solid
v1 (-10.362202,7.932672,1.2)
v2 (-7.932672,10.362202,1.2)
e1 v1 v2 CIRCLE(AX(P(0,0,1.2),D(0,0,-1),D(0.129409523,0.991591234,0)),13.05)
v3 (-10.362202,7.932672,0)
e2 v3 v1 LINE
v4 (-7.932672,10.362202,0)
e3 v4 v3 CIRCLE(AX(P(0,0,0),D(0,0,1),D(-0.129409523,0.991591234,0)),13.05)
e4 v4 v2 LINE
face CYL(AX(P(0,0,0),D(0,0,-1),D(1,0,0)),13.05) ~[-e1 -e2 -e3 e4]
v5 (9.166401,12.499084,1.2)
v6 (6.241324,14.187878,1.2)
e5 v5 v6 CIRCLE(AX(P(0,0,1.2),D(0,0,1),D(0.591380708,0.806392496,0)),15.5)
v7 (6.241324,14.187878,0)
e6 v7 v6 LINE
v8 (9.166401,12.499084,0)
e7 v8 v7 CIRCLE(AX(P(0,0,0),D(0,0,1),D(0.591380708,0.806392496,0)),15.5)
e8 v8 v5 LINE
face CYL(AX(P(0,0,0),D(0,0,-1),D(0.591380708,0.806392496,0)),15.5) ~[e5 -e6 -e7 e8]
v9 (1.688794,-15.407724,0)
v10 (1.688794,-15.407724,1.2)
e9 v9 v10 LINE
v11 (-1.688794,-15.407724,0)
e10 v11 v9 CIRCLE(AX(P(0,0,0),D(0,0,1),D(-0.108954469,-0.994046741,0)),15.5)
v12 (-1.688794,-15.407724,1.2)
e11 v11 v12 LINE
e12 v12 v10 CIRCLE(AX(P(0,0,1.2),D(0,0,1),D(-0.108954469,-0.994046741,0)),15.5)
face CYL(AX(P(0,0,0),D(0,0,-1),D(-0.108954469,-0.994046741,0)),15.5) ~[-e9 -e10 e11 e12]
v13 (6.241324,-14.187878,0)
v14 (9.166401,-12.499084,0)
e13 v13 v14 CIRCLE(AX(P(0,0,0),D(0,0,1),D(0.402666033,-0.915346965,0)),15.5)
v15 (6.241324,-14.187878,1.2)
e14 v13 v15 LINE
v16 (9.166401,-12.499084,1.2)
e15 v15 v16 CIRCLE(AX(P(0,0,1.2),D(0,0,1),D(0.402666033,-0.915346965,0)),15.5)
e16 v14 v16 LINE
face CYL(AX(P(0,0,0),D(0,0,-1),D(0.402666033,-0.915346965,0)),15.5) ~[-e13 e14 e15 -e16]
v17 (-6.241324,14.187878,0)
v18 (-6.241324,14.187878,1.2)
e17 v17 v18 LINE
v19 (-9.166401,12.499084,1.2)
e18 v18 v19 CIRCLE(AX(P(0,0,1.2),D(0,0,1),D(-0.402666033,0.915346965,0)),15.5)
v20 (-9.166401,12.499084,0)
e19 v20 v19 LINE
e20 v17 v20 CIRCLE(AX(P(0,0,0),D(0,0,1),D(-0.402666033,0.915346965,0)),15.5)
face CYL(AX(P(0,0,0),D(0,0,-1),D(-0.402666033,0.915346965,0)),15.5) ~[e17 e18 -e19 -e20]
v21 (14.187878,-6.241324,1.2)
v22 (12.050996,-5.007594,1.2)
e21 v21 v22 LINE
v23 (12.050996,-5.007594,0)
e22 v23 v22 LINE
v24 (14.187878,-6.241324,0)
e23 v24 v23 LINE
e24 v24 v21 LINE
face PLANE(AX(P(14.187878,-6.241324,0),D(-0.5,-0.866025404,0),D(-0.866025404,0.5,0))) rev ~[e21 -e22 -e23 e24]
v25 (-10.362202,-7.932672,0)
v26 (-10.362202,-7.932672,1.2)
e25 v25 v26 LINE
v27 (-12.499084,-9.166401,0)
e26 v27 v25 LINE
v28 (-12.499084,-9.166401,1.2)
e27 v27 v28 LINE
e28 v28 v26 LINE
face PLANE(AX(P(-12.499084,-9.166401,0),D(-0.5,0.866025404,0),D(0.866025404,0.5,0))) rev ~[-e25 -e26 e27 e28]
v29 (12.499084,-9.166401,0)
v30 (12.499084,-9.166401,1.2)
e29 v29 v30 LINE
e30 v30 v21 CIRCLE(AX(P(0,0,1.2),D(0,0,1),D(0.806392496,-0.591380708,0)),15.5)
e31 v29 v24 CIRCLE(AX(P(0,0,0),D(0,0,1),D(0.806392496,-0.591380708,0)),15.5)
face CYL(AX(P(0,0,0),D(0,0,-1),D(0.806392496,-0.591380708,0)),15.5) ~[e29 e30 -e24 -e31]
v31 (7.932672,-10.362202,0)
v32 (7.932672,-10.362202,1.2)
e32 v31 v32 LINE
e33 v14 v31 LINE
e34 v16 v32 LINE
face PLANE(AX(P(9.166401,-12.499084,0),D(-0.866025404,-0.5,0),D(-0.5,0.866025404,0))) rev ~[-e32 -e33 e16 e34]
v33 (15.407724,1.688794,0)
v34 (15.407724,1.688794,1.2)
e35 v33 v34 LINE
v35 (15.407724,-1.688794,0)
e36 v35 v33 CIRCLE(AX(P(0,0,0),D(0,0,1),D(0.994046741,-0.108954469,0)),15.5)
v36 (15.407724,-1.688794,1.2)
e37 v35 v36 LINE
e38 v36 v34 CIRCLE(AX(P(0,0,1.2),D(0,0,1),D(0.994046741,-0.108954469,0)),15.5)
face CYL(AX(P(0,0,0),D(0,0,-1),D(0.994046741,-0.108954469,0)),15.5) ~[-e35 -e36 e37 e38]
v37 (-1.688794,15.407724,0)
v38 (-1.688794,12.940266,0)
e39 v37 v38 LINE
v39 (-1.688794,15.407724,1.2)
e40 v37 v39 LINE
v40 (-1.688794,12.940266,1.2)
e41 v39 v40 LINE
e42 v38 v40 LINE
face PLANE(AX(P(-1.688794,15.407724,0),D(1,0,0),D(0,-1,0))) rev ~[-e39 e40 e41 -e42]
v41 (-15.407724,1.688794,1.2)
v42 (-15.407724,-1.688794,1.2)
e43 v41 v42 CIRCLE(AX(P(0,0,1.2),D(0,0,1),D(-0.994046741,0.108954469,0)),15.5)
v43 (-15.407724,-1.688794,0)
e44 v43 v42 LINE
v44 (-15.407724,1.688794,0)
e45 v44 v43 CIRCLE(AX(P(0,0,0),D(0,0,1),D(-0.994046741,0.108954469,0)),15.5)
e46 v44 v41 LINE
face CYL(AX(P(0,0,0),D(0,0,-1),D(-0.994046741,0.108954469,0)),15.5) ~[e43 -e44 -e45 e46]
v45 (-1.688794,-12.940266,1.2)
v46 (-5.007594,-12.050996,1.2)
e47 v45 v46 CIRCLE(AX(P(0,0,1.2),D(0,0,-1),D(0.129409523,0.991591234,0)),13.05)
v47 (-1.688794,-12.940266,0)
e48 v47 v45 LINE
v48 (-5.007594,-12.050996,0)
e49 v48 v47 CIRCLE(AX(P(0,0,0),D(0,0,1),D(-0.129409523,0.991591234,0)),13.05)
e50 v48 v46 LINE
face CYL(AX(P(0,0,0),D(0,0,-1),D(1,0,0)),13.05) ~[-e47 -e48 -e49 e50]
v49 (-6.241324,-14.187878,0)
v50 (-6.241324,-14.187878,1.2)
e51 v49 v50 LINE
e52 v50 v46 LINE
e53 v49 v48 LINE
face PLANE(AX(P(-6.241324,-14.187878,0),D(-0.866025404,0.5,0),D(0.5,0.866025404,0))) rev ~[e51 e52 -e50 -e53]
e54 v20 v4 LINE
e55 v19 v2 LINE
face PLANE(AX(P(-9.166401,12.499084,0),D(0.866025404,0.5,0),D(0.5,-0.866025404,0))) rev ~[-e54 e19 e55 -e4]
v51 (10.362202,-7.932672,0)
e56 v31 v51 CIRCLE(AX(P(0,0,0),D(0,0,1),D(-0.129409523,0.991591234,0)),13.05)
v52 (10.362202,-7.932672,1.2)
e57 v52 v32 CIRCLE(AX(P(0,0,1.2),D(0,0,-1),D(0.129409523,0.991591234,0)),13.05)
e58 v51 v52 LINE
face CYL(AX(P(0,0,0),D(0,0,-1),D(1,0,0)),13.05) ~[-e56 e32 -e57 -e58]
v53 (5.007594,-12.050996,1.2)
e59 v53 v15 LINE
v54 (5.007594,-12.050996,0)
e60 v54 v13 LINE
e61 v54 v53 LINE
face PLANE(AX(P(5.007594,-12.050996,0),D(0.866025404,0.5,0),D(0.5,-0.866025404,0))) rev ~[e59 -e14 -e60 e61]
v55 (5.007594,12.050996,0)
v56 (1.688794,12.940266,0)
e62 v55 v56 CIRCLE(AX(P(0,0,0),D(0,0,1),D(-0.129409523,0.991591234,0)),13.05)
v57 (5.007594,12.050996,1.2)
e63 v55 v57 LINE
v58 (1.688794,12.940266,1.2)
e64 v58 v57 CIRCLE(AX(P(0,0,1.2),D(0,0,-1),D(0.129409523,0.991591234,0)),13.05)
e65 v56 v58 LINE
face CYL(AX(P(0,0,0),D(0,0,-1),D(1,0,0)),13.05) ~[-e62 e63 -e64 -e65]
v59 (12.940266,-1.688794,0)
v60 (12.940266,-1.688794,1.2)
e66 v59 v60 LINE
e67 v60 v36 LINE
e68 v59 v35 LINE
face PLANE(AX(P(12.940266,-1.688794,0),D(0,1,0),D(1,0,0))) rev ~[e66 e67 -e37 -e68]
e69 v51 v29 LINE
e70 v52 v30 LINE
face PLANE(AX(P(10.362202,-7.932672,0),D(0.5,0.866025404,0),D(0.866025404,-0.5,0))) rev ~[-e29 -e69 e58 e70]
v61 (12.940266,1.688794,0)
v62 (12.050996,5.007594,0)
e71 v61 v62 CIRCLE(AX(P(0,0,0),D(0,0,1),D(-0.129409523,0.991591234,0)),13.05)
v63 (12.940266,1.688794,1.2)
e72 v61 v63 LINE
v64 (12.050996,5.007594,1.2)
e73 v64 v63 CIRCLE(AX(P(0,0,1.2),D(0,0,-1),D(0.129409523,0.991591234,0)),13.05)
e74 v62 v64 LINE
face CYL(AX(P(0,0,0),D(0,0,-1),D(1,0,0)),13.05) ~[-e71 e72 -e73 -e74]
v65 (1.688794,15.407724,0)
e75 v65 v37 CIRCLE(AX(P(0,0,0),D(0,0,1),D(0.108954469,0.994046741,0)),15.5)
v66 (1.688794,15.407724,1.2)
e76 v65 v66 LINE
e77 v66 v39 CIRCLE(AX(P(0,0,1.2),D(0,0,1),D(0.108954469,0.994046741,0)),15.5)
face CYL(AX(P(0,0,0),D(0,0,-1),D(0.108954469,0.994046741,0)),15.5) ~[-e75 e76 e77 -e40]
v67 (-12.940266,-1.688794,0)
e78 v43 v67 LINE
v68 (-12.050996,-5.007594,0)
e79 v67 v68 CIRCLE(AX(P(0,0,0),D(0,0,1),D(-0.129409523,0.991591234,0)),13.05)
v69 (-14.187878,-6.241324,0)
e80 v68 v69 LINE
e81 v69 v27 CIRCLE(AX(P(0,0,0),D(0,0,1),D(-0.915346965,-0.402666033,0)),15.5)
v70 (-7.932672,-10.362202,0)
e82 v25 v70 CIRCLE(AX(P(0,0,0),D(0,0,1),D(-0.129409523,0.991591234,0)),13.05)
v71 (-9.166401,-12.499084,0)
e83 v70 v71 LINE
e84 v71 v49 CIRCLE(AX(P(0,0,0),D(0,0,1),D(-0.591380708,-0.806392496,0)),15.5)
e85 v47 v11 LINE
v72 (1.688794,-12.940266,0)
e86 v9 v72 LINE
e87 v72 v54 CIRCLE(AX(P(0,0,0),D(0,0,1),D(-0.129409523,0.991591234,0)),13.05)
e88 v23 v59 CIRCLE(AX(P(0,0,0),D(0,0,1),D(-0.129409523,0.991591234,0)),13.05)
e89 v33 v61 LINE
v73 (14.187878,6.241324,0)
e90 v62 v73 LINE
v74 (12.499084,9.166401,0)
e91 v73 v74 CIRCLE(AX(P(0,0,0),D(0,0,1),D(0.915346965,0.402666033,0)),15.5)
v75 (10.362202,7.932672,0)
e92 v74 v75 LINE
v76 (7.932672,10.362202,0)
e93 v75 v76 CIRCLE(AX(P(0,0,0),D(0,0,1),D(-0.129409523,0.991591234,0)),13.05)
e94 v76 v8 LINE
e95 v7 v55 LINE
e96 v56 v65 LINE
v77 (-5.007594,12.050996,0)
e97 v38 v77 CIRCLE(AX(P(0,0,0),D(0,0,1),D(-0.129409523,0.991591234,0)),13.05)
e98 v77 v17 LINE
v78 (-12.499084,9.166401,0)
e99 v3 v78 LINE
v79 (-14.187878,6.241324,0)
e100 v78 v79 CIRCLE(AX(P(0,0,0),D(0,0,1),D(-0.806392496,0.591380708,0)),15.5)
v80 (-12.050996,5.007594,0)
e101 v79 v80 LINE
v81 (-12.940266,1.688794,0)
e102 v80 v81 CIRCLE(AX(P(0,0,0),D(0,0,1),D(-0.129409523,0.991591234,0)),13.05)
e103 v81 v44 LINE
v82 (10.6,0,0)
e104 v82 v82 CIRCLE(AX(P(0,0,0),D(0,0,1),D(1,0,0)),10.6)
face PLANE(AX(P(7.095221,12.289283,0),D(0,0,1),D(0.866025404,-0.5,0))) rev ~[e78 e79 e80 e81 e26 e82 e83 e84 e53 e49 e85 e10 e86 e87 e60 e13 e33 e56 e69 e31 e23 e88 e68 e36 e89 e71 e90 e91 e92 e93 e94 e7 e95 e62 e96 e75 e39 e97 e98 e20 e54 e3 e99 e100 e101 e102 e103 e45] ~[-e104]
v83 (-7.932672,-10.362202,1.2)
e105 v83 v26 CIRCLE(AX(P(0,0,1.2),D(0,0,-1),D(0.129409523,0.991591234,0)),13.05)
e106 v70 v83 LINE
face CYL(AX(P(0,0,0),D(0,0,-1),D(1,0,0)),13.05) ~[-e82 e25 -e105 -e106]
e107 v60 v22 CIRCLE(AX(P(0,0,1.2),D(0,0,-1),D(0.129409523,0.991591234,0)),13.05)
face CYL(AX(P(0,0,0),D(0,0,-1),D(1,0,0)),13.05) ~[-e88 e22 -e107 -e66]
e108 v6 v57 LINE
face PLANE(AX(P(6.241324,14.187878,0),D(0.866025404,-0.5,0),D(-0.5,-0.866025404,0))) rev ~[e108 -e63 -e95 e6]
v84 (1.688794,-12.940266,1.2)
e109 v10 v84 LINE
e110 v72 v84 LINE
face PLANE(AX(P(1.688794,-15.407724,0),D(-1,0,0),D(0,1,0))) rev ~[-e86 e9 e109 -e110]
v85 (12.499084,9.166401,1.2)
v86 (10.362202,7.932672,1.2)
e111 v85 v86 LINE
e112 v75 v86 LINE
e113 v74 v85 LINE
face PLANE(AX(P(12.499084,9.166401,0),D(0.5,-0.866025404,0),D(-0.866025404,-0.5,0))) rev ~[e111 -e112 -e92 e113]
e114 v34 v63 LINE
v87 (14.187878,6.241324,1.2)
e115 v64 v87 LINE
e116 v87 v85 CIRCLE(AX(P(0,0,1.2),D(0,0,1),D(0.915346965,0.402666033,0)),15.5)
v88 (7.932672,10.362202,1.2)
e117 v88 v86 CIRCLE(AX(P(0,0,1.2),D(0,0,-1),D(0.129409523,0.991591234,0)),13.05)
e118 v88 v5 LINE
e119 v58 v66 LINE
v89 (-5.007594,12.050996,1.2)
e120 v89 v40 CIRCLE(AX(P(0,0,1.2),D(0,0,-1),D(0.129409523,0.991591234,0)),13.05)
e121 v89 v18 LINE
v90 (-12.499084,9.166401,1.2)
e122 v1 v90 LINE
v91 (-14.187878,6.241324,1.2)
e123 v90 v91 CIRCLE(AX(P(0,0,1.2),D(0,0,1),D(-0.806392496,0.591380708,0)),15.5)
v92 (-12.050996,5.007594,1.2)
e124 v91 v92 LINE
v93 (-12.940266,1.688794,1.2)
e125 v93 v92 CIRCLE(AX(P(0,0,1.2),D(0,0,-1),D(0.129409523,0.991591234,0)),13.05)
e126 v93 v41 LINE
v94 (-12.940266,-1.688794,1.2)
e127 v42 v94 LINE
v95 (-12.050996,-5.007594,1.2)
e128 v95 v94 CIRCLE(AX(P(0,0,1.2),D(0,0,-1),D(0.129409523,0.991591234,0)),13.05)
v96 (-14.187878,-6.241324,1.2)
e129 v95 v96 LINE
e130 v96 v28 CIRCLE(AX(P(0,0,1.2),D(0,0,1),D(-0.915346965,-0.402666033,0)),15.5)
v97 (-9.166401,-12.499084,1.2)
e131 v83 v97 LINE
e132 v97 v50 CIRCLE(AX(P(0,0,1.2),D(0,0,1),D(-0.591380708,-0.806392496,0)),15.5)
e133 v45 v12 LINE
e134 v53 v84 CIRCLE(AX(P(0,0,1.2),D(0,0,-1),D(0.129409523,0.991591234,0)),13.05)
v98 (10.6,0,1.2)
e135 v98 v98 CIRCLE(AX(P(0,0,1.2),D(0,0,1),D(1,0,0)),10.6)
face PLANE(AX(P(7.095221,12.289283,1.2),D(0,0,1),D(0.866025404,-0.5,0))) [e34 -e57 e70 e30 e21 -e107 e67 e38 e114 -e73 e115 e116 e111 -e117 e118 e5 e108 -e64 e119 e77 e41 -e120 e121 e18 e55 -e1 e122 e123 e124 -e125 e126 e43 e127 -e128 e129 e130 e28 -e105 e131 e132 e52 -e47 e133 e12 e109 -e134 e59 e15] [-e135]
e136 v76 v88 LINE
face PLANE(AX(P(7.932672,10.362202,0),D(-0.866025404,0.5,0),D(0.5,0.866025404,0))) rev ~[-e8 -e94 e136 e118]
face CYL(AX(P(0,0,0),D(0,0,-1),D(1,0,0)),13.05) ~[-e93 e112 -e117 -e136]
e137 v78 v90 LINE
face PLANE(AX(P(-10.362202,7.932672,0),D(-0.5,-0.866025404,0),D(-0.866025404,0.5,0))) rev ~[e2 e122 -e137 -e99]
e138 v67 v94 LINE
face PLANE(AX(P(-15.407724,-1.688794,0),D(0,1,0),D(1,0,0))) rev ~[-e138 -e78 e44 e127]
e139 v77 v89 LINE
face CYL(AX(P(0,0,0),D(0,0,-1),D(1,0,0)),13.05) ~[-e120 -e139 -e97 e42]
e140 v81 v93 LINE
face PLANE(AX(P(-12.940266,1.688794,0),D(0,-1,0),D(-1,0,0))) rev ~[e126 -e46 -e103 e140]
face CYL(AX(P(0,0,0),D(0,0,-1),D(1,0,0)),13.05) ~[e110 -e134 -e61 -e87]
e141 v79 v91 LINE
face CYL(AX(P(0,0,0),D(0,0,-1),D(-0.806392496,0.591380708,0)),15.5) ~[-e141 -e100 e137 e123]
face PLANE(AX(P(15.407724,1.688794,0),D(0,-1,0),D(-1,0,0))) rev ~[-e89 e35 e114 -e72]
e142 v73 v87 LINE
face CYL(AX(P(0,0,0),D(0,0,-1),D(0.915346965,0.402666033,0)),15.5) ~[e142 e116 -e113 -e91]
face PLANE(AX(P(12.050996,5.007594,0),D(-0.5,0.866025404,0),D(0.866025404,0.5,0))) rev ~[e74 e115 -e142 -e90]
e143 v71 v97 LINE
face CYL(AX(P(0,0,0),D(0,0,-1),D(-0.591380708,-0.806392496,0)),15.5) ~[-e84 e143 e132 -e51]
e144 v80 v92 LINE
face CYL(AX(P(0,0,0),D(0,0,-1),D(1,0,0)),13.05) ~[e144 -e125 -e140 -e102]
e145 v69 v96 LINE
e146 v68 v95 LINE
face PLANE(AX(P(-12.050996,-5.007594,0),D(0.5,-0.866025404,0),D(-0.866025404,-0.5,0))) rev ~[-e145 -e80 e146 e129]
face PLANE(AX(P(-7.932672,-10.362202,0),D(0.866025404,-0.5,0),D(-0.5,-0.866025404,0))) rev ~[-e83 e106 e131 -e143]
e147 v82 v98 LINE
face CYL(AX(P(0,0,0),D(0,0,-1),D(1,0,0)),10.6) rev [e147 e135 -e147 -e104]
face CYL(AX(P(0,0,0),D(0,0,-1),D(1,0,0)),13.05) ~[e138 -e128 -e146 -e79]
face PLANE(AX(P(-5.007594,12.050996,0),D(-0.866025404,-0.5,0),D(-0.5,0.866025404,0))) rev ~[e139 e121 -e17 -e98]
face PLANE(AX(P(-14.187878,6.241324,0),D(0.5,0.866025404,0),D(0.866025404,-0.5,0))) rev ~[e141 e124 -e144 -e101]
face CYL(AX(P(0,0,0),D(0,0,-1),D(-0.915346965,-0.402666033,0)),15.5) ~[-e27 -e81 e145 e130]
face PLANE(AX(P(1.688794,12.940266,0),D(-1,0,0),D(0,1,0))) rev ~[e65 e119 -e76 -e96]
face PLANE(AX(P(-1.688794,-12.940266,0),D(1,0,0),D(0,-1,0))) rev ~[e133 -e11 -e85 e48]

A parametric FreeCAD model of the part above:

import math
import FreeCAD as App
import Part
import Sketcher
from FreeCAD import Vector

doc = App.newDocument("Part")
body = doc.addObject("PartDesign::Body", "Body")

# Sketch on XY plane
sketch1 = body.newObject("Sketcher::SketchObject", "Sketch")
sketch1.AttachmentSupport = (doc.getObject("XY_Plane"), [""])
sketch1.MapMode = "FlatFace"
sketch1.addGeometry([
    Part.Circle(Vector(0, 0, 0), Vector(0, 0, 1), 13.05),
    Part.Circle(Vector(0, 0, 0), Vector(0, 0, 1), 10.6),
], False)
sketch1.addConstraint([
    Sketcher.Constraint("Coincident", 0, 3, -1, 1),
    Sketcher.Constraint("Coincident", 1, 3, -1, 1),
    Sketcher.Constraint("Diameter", 0, 26.1),
    Sketcher.Constraint("Diameter", 1, 21.2),
])
pad1 = body.newObject("PartDesign::Pad", "Pad")
pad1.Profile = sketch1
pad1.Length = 1.2

# Sketch on XY plane
sketch2 = body.newObject("Sketcher::SketchObject", "Sketch001")
sketch2.AttachmentSupport = (doc.getObject("XY_Plane"), [""])
sketch2.MapMode = "FlatFace"
sketch2.addGeometry([
    Part.LineSegment(Vector(-1.688794, 15.407724, 0), Vector(-1.688794, 12.940266, 0)),
    Part.LineSegment(Vector(-1.688794, 12.940266, 0), Vector(1.688794, 12.940266, 0)),
    Part.LineSegment(Vector(1.688794, 12.940266, 0), Vector(1.688794, 15.407724, 0)),
    Part.ArcOfCircle(Part.Circle(Vector(0, 0, 0), Vector(0, 0, 1), 15.5), math.radians(83.744951), math.radians(96.255049)),
], False)
sketch2.addConstraint([
    Sketcher.Constraint("Coincident", 0, 2, 1, 1),
    Sketcher.Constraint("Coincident", 1, 2, 2, 1),
    Sketcher.Constraint("Coincident", 2, 2, 3, 1),
    Sketcher.Constraint("Coincident", 3, 2, 0, 1),
    Sketcher.Constraint("Vertical", 0),
    Sketcher.Constraint("Horizontal", 1),
    Sketcher.Constraint("Vertical", 2),
    Sketcher.Constraint("Coincident", 3, 3, -1, 1),
    Sketcher.Constraint("Horizontal", 2, 2, 3, 2),
    Sketcher.Constraint("Radius", 3, 15.5),
    Sketcher.Constraint("DistanceX", 1, 1, 1, 2, 3.377589),
    Sketcher.Constraint("DistanceY", 0, 2, 0, 1, 2.467459),
])
pad2 = body.newObject("PartDesign::Pad", "Pad001")
pad2.Profile = sketch2
pad2.Length = 1.2
doc.recompute()

polarpattern = body.newObject("PartDesign::PolarPattern", "PolarPattern")
polarpattern.Originals = [pad2]
polarpattern.Axis = (doc.getObject("Z_Axis"), [""])
polarpattern.Angle = 360
polarpattern.Occurrences = 12
body.Tip = polarpattern

doc.recompute()
